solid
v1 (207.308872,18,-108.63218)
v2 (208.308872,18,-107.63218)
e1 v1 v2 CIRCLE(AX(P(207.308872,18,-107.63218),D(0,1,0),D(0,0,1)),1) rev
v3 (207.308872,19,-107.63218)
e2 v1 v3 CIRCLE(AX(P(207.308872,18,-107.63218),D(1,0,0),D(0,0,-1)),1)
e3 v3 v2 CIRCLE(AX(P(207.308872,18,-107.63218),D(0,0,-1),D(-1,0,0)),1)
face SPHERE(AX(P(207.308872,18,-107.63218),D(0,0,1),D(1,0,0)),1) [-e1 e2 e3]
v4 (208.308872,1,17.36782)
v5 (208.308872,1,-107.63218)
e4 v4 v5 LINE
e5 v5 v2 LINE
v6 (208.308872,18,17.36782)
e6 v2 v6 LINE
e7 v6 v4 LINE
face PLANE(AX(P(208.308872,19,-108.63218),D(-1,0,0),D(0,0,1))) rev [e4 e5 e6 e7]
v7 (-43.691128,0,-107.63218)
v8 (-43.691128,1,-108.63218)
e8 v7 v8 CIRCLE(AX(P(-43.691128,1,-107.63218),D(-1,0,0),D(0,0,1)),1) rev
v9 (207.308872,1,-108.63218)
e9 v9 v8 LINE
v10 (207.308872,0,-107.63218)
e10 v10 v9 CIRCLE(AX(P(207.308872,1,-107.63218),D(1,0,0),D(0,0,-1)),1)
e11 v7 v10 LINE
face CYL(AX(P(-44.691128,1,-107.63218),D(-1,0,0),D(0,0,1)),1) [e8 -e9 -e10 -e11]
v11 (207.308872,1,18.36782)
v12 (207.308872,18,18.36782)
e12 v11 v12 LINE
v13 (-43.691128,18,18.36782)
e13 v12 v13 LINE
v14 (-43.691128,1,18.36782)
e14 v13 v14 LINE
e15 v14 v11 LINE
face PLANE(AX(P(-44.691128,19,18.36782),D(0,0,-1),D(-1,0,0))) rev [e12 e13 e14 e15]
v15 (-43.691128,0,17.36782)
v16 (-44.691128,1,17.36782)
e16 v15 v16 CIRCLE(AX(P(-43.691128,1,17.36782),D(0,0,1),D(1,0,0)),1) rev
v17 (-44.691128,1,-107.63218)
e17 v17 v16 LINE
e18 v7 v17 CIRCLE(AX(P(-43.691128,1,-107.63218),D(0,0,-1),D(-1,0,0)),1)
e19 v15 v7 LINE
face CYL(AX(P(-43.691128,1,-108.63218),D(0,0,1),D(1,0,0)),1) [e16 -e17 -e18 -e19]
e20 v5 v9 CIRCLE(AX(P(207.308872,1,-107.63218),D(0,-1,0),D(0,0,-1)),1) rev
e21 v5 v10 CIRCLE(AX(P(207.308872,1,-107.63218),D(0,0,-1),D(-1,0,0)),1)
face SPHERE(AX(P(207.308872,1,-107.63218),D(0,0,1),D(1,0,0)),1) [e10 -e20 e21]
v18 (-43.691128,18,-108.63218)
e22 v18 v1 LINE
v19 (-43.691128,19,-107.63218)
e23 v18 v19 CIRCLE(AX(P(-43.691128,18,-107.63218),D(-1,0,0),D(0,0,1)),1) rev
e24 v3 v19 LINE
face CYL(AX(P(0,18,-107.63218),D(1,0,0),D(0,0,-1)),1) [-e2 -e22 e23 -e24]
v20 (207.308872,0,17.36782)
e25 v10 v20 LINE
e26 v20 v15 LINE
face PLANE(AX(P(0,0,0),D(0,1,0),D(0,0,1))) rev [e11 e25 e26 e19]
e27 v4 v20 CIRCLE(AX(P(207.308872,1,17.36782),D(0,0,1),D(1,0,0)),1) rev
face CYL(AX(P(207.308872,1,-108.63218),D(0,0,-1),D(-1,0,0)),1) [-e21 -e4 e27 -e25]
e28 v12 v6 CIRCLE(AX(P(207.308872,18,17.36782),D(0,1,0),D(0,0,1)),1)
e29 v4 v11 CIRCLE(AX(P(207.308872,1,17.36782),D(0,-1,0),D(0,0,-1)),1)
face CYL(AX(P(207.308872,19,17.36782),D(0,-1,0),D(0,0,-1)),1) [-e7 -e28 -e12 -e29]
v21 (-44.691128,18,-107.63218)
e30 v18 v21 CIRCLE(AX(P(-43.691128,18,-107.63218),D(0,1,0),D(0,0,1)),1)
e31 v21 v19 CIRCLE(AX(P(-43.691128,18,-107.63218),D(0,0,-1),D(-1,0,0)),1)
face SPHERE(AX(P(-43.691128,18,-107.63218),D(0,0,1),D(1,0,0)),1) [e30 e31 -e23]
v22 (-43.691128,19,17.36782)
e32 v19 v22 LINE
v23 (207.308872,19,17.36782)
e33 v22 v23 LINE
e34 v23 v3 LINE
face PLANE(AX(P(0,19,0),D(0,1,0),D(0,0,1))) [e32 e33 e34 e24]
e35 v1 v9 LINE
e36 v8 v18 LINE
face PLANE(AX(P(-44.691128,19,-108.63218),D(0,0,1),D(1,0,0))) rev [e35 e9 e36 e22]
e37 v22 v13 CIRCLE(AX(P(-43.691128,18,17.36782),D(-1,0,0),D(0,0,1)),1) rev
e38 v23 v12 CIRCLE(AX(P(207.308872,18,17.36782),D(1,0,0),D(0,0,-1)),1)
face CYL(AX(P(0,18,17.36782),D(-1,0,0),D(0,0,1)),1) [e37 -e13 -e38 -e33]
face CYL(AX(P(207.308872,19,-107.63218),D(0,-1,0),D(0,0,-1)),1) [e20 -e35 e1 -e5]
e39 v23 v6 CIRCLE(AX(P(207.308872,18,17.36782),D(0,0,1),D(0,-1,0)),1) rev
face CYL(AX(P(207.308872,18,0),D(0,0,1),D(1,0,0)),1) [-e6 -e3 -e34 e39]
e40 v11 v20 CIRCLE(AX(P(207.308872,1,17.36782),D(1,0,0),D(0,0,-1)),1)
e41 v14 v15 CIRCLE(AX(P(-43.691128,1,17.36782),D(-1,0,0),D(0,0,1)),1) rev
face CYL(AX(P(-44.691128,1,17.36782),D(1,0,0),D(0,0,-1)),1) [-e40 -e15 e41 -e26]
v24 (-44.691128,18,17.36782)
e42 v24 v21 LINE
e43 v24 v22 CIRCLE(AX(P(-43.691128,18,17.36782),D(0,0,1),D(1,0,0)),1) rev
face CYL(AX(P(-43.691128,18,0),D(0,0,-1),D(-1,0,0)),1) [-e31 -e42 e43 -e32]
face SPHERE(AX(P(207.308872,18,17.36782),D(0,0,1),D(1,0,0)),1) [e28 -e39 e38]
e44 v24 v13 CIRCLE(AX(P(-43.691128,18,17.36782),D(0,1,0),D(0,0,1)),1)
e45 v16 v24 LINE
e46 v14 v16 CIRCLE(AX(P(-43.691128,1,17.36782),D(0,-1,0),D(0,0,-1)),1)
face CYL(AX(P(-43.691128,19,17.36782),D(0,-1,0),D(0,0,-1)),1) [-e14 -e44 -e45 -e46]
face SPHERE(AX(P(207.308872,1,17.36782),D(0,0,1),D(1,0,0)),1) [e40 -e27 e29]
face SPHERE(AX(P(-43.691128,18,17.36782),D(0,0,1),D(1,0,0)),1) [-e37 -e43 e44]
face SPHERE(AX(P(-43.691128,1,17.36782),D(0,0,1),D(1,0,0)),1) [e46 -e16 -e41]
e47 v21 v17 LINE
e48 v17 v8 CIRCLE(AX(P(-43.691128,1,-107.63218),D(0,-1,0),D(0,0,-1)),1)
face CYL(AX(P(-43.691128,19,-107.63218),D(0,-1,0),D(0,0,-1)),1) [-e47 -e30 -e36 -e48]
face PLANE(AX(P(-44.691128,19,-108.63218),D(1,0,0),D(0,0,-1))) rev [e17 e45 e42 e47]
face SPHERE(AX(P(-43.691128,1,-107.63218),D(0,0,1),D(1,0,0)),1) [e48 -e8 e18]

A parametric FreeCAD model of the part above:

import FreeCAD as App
import Part
import Sketcher

V = App.Vector

doc = App.newDocument("Part")
body = doc.addObject("PartDesign::Body", "Body")

sketch1 = body.newObject("Sketcher::SketchObject", "Sketch")
sketch1.AttachmentSupport = (doc.getObject("XZ_Plane"), [""])
sketch1.MapMode = "FlatFace"
sketch1.addGeometry([
    Part.LineSegment(V(-45, -109, 0), V(-45, 18, 0)),
    Part.LineSegment(V(-45, 18, 0), V(208, 18, 0)),
    Part.LineSegment(V(208, 18, 0), V(208, -109, 0)),
    Part.LineSegment(V(208, -109, 0), V(-45, -109, 0)),
], False)
sketch1.addConstraint([
    Sketcher.Constraint("Coincident", 0, 2, 1, 1),
    Sketcher.Constraint("Coincident", 1, 2, 2, 1),
    Sketcher.Constraint("Coincident", 2, 2, 3, 1),
    Sketcher.Constraint("Coincident", 3, 2, 0, 1),
    Sketcher.Constraint("Vertical", 0),
    Sketcher.Constraint("Horizontal", 1),
    Sketcher.Constraint("Vertical", 2),
    Sketcher.Constraint("Horizontal", 3),
    Sketcher.Constraint("DistanceX", 1, 1, 1, 2, 253.0),
    Sketcher.Constraint("DistanceY", 0, 1, 0, 2, 127.0),
    Sketcher.Constraint("DistanceY", -1, 1, 0, 2, 18.36782),
    Sketcher.Constraint("DistanceX", 0, 2, -1, 1, 44.691128),
])
pad1 = body.newObject("PartDesign::Pad", "Pad")
pad1.Profile = sketch1
pad1.Length = 19
pad1.Reversed = True
doc.recompute()

fillet = body.newObject("PartDesign::Fillet", "Fillet")
fillet.Base = (pad1, ["Edge1"])
fillet.UseAllEdges = True
fillet.Radius = 1

doc.recompute()
